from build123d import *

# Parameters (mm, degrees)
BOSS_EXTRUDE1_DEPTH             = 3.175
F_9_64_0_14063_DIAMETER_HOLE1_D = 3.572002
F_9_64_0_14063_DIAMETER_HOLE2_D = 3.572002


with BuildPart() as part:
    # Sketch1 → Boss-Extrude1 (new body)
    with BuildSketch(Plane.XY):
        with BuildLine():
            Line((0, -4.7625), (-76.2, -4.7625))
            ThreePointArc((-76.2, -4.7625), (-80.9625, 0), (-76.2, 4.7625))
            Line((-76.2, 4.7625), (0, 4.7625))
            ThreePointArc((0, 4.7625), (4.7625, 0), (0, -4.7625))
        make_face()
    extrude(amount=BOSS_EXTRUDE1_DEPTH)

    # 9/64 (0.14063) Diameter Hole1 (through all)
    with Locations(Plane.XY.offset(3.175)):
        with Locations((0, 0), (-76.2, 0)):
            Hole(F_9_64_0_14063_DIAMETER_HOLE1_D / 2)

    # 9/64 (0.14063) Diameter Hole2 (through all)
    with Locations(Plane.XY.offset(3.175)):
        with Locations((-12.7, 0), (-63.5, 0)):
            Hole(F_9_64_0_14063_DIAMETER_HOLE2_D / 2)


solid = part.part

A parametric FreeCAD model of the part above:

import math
import FreeCAD as App
import Part
import Sketcher
Q = App.Units.Quantity

doc = App.newDocument("Part")
body = doc.addObject("PartDesign::Body", "Body")

sketch1 = body.newObject("Sketcher::SketchObject", "Sketch")
sketch1.AttachmentSupport = (doc.getObject("XY_Plane"), [""])
sketch1.MapMode = "FlatFace"
sketch1.addGeometry([
    Part.LineSegment(App.Vector(-76.2, -4.8, 0), App.Vector(0, -4.8, 0)),
    Part.ArcOfCircle(Part.Circle(App.Vector(0, 0, 0), App.Vector(0, 0, 1), 4.8), math.radians(-90), math.radians(90)),
    Part.LineSegment(App.Vector(0, 4.8, 0), App.Vector(-76.2, 4.8, 0)),
    Part.ArcOfCircle(Part.Circle(App.Vector(-76.2, 0, 0), App.Vector(0, 0, 1), 4.8), math.radians(90), math.radians(270)),
], False)
sketch1.addConstraint([
    Sketcher.Constraint("Tangent", 0, 2, 1, 1),
    Sketcher.Constraint("Tangent", 1, 2, 2, 1),
    Sketcher.Constraint("Tangent", 2, 2, 3, 1),
    Sketcher.Constraint("Tangent", 3, 2, 0, 1),
    Sketcher.Constraint("Horizontal", 0),
    Sketcher.Constraint("Horizontal", 2),
    Sketcher.Constraint("Coincident", 1, 3, -1, 1),
    Sketcher.Constraint("DistanceX", 0, 1, 0, 2, Q("3 in")),
    Sketcher.Constraint("Radius", 1, Q("0.1875 in")),
])
pad1 = body.newObject("PartDesign::Pad", "Pad")
pad1.Profile = sketch1
pad1.Length = Q("0.125 in")

sketch2 = body.newObject("Sketcher::SketchObject", "Sketch001")
sketch2.AttachmentSupport = (doc.getObject("XY_Plane"), [""])
sketch2.MapMode = "FlatFace"
sketch2.AttachmentOffset = App.Placement(App.Vector(0, 0, 0.125 * 25.4), App.Rotation())
sketch2.addGeometry([
    Part.Circle(App.Vector(0, 0, 0), App.Vector(0, 0, 1), 1.8),
    Part.Circle(App.Vector(-76.2, 0, 0), App.Vector(0, 0, 1), 1.8),
], False)
sketch2.addConstraint([
    Sketcher.Constraint("Coincident", 0, 3, -1, 1),
    Sketcher.Constraint("Equal", 0, 1),
    Sketcher.Constraint("PointOnObject", 1, 3, -1),
    Sketcher.Constraint("DistanceX", 1, 3, -1, 1, Q("3 in")),
    Sketcher.Constraint("Diameter", 0, Q("3.572002 mm")),
])
doc.recompute()
hole = body.newObject("PartDesign::Hole", "Hole")
hole.Profile = sketch2
hole.ThreadType = "None"
hole.Diameter = 3.572002
hole.DepthType = "ThroughAll"

sketch3 = body.newObject("Sketcher::SketchObject", "Sketch002")
sketch3.AttachmentSupport = (doc.getObject("XY_Plane"), [""])
sketch3.MapMode = "FlatFace"
sketch3.AttachmentOffset = App.Placement(App.Vector(0, 0, 0.125 * 25.4), App.Rotation())
sketch3.addGeometry([
    Part.Circle(App.Vector(-12.7, 0, 0), App.Vector(0, 0, 1), 1.8),
    Part.Circle(App.Vector(-63.5, 0, 0), App.Vector(0, 0, 1), 1.8),
], False)
sketch3.addConstraint([
    Sketcher.Constraint("Equal", 0, 1),
    Sketcher.Constraint("PointOnObject", 0, 3, -1),
    Sketcher.Constraint("PointOnObject", 1, 3, -1),
    Sketcher.Constraint("DistanceX", 1, 3, 0, 3, Q("2 in")),
    Sketcher.Constraint("DistanceX", 0, 3, -1, 1, Q("0.5 in")),
    Sketcher.Constraint("Diameter", 0, Q("3.572002 mm")),
])
doc.recompute()
hole2 = body.newObject("PartDesign::Hole", "Hole001")
hole2.Profile = sketch3
hole2.ThreadType = "None"
hole2.Diameter = 3.572002
hole2.DepthType = "ThroughAll"

doc.recompute()
